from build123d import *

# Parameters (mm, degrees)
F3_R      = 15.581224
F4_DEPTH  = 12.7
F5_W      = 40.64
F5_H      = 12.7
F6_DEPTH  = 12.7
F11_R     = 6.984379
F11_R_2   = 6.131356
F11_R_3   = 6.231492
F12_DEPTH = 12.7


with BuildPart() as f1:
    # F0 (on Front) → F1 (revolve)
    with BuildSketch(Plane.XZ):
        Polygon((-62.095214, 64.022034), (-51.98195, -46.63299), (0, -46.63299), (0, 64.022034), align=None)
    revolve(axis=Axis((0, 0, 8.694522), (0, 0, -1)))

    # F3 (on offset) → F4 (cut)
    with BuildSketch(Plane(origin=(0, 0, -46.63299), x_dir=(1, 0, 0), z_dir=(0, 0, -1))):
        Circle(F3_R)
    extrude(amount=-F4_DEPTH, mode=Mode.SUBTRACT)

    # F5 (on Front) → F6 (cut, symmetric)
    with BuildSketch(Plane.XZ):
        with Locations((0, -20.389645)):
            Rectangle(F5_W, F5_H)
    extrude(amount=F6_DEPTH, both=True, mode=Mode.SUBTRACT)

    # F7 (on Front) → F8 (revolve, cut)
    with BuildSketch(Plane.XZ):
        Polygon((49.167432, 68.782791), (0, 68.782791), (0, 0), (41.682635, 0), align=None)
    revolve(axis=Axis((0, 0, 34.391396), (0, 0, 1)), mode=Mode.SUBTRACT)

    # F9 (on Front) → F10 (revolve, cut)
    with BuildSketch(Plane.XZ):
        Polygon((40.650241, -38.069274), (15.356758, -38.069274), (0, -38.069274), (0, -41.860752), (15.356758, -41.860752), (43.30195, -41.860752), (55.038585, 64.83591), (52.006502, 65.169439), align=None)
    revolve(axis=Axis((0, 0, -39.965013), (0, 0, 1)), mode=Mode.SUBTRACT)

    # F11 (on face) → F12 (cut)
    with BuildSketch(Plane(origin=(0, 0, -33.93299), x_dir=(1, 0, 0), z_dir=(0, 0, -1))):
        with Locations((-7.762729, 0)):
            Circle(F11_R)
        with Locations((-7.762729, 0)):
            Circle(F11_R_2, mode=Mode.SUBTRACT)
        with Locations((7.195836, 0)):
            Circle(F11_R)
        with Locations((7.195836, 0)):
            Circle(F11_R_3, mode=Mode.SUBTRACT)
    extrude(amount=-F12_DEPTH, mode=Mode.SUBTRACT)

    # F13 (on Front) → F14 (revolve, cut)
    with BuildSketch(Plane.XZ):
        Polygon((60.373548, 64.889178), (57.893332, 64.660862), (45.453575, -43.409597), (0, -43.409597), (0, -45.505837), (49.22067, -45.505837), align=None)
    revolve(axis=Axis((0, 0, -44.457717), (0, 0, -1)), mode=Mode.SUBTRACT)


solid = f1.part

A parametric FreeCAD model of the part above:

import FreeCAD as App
import Part
import Sketcher

V = App.Vector
Q = App.Units.Quantity


def add_polygon(sketch, points):
    """Adds a closed chain of lines whose ends are joined by coincident constraints."""
    first, n = sketch.GeometryCount, len(points)
    for a, b in zip(points, points[1:] + points[:1]):
        sketch.addGeometry(Part.LineSegment(App.Vector(*a, 0), App.Vector(*b, 0)), False)
    for i in range(n):
        sketch.addConstraint(Sketcher.Constraint("Coincident", first + i, 2, first + (i + 1) % n, 1))

doc = App.newDocument("Part")
params = doc.addObject("Spreadsheet::Sheet", "Params")
for row, (alias, value) in enumerate([
    ("revolution_angle", "360 deg"),
    ("pocket1_length", "0.5 in"),
    ("sketch3_width", "1.6 in"),
    ("sketch3_height", "0.5 in"),
    ("pocket2_length", "1 in"),
    ("groove_angle", "360 deg"),
    ("groove2_angle", "360 deg"),
    ("pocket3_length", "0.5 in"),
    ("groove3_angle", "360 deg"),
], start=1):
    params.set(f"A{row}", alias)
    params.set(f"B{row}", "=" + value)
    params.setAlias(f"B{row}", alias)

body = doc.addObject("PartDesign::Body", "Body")
body.AllowCompound = True

# Sketch on XZ plane
sketch1 = body.newObject("Sketcher::SketchObject", "Sketch")
sketch1.AttachmentSupport = (doc.getObject("XZ_Plane"), [""])
sketch1.MapMode = "FlatFace"
add_polygon(sketch1, [(-62, 64), (-52, -47), (0, -47), (0, 64)])  # lines 0-3
sketch1.addConstraint([
    Sketcher.Constraint("Horizontal", 1),
    Sketcher.Constraint("Vertical", 2),
    Sketcher.Constraint("Horizontal", 3),
    Sketcher.Constraint("PointOnObject", 1, 2, -2),
    Sketcher.Constraint("DistanceX", 1, 1, 1, 2, 51.98195),
    Sketcher.Constraint("Distance", 0, 111.116211),
    Sketcher.Constraint("DistanceX", 3, 2, 3, 1, 62.095214),
    Sketcher.Constraint("DistanceY", 0, 2, -1, 1, 46.63299),
])
revolution = body.newObject("PartDesign::Revolution", "Revolution")
revolution.Profile = sketch1
revolution.ReferenceAxis = (sketch1, ["V_Axis"])
revolution.setExpression("Angle", "Params.revolution_angle")

# Sketch on XY plane
sketch2 = body.newObject("Sketcher::SketchObject", "Sketch001")
sketch2.AttachmentSupport = (doc.getObject("XY_Plane"), [""])
sketch2.MapMode = "FlatFace"
sketch2.AttachmentOffset = App.Placement(V(0, 0, -46.63299), App.Rotation())
sketch2.addGeometry(Part.Circle(V(0, 0, 0), V(0, 0, 1), 16), False)
sketch2.addConstraint([
    Sketcher.Constraint("Coincident", 0, 3, -1, 1),
    Sketcher.Constraint("Diameter", 0, 31.162448),
])
pocket1 = body.newObject("PartDesign::Pocket", "Pocket")
pocket1.Profile = sketch2
pocket1.setExpression("Length", "Params.pocket1_length")
pocket1.Reversed = True

# Sketch on XZ plane
sketch3 = body.newObject("Sketcher::SketchObject", "Sketch002")
sketch3.AttachmentSupport = (doc.getObject("XZ_Plane"), [""])
sketch3.MapMode = "FlatFace"
add_polygon(sketch3, [(-20, -14), (-20, -27), (20, -27), (20, -14)])  # lines 0-3
sketch3.addConstraint([
    Sketcher.Constraint("Vertical", 0),
    Sketcher.Constraint("Horizontal", 1),
    Sketcher.Constraint("Vertical", 2),
    Sketcher.Constraint("Horizontal", 3),
    Sketcher.Constraint("DistanceX", 1, 1, 1, 2, Q("1.6 in")),
    Sketcher.Constraint("DistanceY", 0, 2, 0, 1, Q("0.5 in")),
    Sketcher.Constraint("DistanceX", 0, 2, -1, 1, Q("0.8 in")),
    Sketcher.Constraint("DistanceY", 0, 2, -1, 1, 26.739645),
])
sketch3.setExpression("Constraints[8]", "Params.sketch3_width")
sketch3.setExpression("Constraints[9]", "Params.sketch3_height")
pocket2 = body.newObject("PartDesign::Pocket", "Pocket001")
pocket2.Profile = sketch3
pocket2.setExpression("Length", "Params.pocket2_length")
pocket2.Midplane = True

# Sketch on XZ plane
sketch4 = body.newObject("Sketcher::SketchObject", "Sketch003")
sketch4.AttachmentSupport = (doc.getObject("XZ_Plane"), [""])
sketch4.MapMode = "FlatFace"
add_polygon(sketch4, [(49, 69), (0, 69), (0, 0), (42, 0)])  # lines 0-3
sketch4.addConstraint([
    Sketcher.Constraint("Horizontal", 0),
    Sketcher.Constraint("Vertical", 1),
    Sketcher.Constraint("Horizontal", 2),
    Sketcher.Constraint("Coincident", 1, 2, -1, 1),
    Sketcher.Constraint("DistanceX", 0, 2, 0, 1, 49.167432),
    Sketcher.Constraint("DistanceY", 1, 2, 1, 1, 68.782791),
    Sketcher.Constraint("DistanceX", 2, 1, 2, 2, 41.682635),
])
groove = body.newObject("PartDesign::Groove", "Groove")
groove.Profile = sketch4
groove.ReferenceAxis = (sketch4, ["V_Axis"])
groove.setExpression("Angle", "Params.groove_angle")

# Sketch on XZ plane
sketch5 = body.newObject("Sketcher::SketchObject", "Sketch004")
sketch5.AttachmentSupport = (doc.getObject("XZ_Plane"), [""])
sketch5.MapMode = "FlatFace"
add_polygon(sketch5, [(40.7, -38.1), (0, -38.1), (0, -41.9), (43.3, -41.9), (55, 64.8), (52, 65.2)])  # lines 0-5
sketch5.addConstraint([
    Sketcher.Constraint("Horizontal", 0),
    Sketcher.Constraint("Vertical", 1),
    Sketcher.Constraint("Horizontal", 2),
    Sketcher.Constraint("PointOnObject", 0, 2, -2),
    Sketcher.Constraint("Perpendicular", 3, 4),
    Sketcher.Constraint("Perpendicular", 4, 5),
    Sketcher.Constraint("DistanceX", -1, 1, 4, 2, Q("2.0475001 in")),
    Sketcher.Constraint("DistanceX", 0, 2, 0, 1, 40.650241),
    Sketcher.Constraint("DistanceX", 2, 1, 2, 2, 43.30195),
    Sketcher.Constraint("Distance", 4, 3.050372),
    Sketcher.Constraint("Distance", 5, 103.861429),
    Sketcher.Constraint("DistanceY", 1, 2, -1, 1, 41.860752),
])
groove2 = body.newObject("PartDesign::Groove", "Groove001")
groove2.Profile = sketch5
groove2.ReferenceAxis = (sketch5, ["V_Axis"])
groove2.setExpression("Angle", "Params.groove2_angle")

# Sketch on XY plane
sketch6 = body.newObject("Sketcher::SketchObject", "Sketch005")
sketch6.AttachmentSupport = (doc.getObject("XY_Plane"), [""])
sketch6.MapMode = "FlatFace"
sketch6.AttachmentOffset = App.Placement(V(0, 0, -33.93299), App.Rotation())
sketch6.addGeometry([
    Part.Circle(V(-8, 0, 0), V(0, 0, 1), 7),
    Part.Circle(V(-8, 0, 0), V(0, 0, 1), 6),
    Part.Circle(V(7, 0, 0), V(0, 0, 1), 7),
    Part.Circle(V(7, 0, 0), V(0, 0, 1), 6),
], False)
sketch6.addConstraint([
    Sketcher.Constraint("Coincident", 1, 3, 0, 3),
    Sketcher.Constraint("Coincident", 3, 3, 2, 3),
    Sketcher.Constraint("Equal", 0, 2),
    Sketcher.Constraint("PointOnObject", 0, 3, -1),
    Sketcher.Constraint("PointOnObject", 2, 3, -1),
    Sketcher.Constraint("Diameter", 0, 13.968758),
    Sketcher.Constraint("Diameter", 1, 12.262712),
    Sketcher.Constraint("Diameter", 3, 12.462984),
    Sketcher.Constraint("DistanceX", 0, 3, -1, 1, 7.762729),
    Sketcher.Constraint("DistanceX", -1, 1, 2, 3, 7.195836),
])
pocket3 = body.newObject("PartDesign::Pocket", "Pocket002")
pocket3.Profile = sketch6
pocket3.setExpression("Length", "Params.pocket3_length")
pocket3.Reversed = True

# Sketch on XZ plane
sketch7 = body.newObject("Sketcher::SketchObject", "Sketch006")
sketch7.AttachmentSupport = (doc.getObject("XZ_Plane"), [""])
sketch7.MapMode = "FlatFace"
add_polygon(sketch7, [(60.4, 64.9), (57.9, 64.7), (45.5, -43.4), (0, -43.4), (0, -45.5), (49.2, -45.5)])  # lines 0-5
sketch7.addConstraint([
    Sketcher.Constraint("Horizontal", 2),
    Sketcher.Constraint("Vertical", 3),
    Sketcher.Constraint("Horizontal", 4),
    Sketcher.Constraint("PointOnObject", 2, 2, -2),
    Sketcher.Constraint("DistanceX", 4, 1, 4, 2, 49.22067),
    Sketcher.Constraint("DistanceY", 3, 2, 3, 1, 2.09624),
    Sketcher.Constraint("DistanceY", 3, 2, 0, 2, 110.166699),
    Sketcher.Constraint("Distance", 1, 108.78406),
    Sketcher.Constraint("DistanceX", 2, 2, 2, 1, 45.453575),
    Sketcher.Constraint("DistanceY", -1, 1, 0, 2, 64.660862),
    Sketcher.Constraint("DistanceY", -1, 1, 5, 2, 64.889178),
    Sketcher.Constraint("DistanceX", 4, 2, 5, 2, 11.152878),
])
groove3 = body.newObject("PartDesign::Groove", "Groove002")
groove3.Profile = sketch7
groove3.ReferenceAxis = (sketch7, ["V_Axis"])
groove3.setExpression("Angle", "Params.groove3_angle")

doc.recompute()
